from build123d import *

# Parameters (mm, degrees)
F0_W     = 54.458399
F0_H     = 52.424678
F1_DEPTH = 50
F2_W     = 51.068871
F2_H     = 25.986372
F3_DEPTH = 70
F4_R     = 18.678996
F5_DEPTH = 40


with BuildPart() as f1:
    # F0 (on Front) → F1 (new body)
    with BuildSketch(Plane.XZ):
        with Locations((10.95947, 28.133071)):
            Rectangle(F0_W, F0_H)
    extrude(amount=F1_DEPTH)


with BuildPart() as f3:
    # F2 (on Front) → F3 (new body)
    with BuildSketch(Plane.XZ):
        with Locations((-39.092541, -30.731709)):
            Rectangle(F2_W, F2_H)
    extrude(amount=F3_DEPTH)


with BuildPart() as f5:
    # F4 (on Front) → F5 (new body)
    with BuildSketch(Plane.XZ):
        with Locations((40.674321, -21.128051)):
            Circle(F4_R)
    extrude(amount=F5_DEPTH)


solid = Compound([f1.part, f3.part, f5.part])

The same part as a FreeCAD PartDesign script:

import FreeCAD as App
import Part
import Sketcher

V = App.Vector

doc = App.newDocument("Part")
body = doc.addObject("PartDesign::Body", "Body")

sketch1 = body.newObject("Sketcher::SketchObject", "Sketch")
sketch1.AttachmentSupport = (doc.getObject("XZ_Plane"), [""])
sketch1.MapMode = "FlatFace"
sketch1.addGeometry([
    Part.LineSegment(V(-16, 54, 0), V(-16, 2, 0)),
    Part.LineSegment(V(-16, 2, 0), V(38, 2, 0)),
    Part.LineSegment(V(38, 2, 0), V(38, 54, 0)),
    Part.LineSegment(V(38, 54, 0), V(-16, 54, 0)),
], False)
sketch1.addConstraint([
    Sketcher.Constraint("Coincident", 0, 2, 1, 1),
    Sketcher.Constraint("Coincident", 1, 2, 2, 1),
    Sketcher.Constraint("Coincident", 2, 2, 3, 1),
    Sketcher.Constraint("Coincident", 3, 2, 0, 1),
    Sketcher.Constraint("Vertical", 0),
    Sketcher.Constraint("Horizontal", 1),
    Sketcher.Constraint("Vertical", 2),
    Sketcher.Constraint("Horizontal", 3),
    Sketcher.Constraint("DistanceX", 1, 1, 1, 2, 54.458399),
    Sketcher.Constraint("DistanceY", 0, 2, 0, 1, 52.424678),
    Sketcher.Constraint("DistanceX", 0, 2, -1, 1, 16.26973),
    Sketcher.Constraint("DistanceY", -1, 1, 2, 2, 54.34541),
])
pad1 = body.newObject("PartDesign::Pad", "Pad")
pad1.Profile = sketch1
pad1.Length = 50
body2 = doc.addObject("PartDesign::Body", "Body001")

sketch2 = body2.newObject("Sketcher::SketchObject", "Sketch001")
sketch2.AttachmentSupport = (doc.getObject("XZ_Plane001"), [""])
sketch2.MapMode = "FlatFace"
sketch2.addGeometry([
    Part.LineSegment(V(-65, -18, 0), V(-65, -44, 0)),
    Part.LineSegment(V(-65, -44, 0), V(-14, -44, 0)),
    Part.LineSegment(V(-14, -44, 0), V(-14, -18, 0)),
    Part.LineSegment(V(-14, -18, 0), V(-65, -18, 0)),
], False)
sketch2.addConstraint([
    Sketcher.Constraint("Coincident", 0, 2, 1, 1),
    Sketcher.Constraint("Coincident", 1, 2, 2, 1),
    Sketcher.Constraint("Coincident", 2, 2, 3, 1),
    Sketcher.Constraint("Coincident", 3, 2, 0, 1),
    Sketcher.Constraint("Vertical", 0),
    Sketcher.Constraint("Horizontal", 1),
    Sketcher.Constraint("Vertical", 2),
    Sketcher.Constraint("Horizontal", 3),
    Sketcher.Constraint("DistanceX", 1, 1, 1, 2, 51.068871),
    Sketcher.Constraint("DistanceY", 0, 2, 0, 1, 25.986372),
    Sketcher.Constraint("DistanceX", 0, 2, -1, 1, 64.626976),
    Sketcher.Constraint("DistanceY", 0, 2, -1, 1, 43.724895),
])
pad2 = body2.newObject("PartDesign::Pad", "Pad001")
pad2.Profile = sketch2
pad2.Length = 70
body3 = doc.addObject("PartDesign::Body", "Body002")

sketch3 = body3.newObject("Sketcher::SketchObject", "Sketch002")
sketch3.AttachmentSupport = (doc.getObject("XZ_Plane002"), [""])
sketch3.MapMode = "FlatFace"
sketch3.addGeometry(Part.Circle(V(41, -21, 0), V(0, 0, 1), 19), False)
sketch3.addConstraint([
    Sketcher.Constraint("Diameter", 0, 37.357992),
    Sketcher.Constraint("DistanceX", -1, 1, 0, 3, 40.674321),
    Sketcher.Constraint("DistanceY", 0, 3, -1, 1, 21.128051),
])
pad3 = body3.newObject("PartDesign::Pad", "Pad002")
pad3.Profile = sketch3
pad3.Length = 40

doc.recompute()
